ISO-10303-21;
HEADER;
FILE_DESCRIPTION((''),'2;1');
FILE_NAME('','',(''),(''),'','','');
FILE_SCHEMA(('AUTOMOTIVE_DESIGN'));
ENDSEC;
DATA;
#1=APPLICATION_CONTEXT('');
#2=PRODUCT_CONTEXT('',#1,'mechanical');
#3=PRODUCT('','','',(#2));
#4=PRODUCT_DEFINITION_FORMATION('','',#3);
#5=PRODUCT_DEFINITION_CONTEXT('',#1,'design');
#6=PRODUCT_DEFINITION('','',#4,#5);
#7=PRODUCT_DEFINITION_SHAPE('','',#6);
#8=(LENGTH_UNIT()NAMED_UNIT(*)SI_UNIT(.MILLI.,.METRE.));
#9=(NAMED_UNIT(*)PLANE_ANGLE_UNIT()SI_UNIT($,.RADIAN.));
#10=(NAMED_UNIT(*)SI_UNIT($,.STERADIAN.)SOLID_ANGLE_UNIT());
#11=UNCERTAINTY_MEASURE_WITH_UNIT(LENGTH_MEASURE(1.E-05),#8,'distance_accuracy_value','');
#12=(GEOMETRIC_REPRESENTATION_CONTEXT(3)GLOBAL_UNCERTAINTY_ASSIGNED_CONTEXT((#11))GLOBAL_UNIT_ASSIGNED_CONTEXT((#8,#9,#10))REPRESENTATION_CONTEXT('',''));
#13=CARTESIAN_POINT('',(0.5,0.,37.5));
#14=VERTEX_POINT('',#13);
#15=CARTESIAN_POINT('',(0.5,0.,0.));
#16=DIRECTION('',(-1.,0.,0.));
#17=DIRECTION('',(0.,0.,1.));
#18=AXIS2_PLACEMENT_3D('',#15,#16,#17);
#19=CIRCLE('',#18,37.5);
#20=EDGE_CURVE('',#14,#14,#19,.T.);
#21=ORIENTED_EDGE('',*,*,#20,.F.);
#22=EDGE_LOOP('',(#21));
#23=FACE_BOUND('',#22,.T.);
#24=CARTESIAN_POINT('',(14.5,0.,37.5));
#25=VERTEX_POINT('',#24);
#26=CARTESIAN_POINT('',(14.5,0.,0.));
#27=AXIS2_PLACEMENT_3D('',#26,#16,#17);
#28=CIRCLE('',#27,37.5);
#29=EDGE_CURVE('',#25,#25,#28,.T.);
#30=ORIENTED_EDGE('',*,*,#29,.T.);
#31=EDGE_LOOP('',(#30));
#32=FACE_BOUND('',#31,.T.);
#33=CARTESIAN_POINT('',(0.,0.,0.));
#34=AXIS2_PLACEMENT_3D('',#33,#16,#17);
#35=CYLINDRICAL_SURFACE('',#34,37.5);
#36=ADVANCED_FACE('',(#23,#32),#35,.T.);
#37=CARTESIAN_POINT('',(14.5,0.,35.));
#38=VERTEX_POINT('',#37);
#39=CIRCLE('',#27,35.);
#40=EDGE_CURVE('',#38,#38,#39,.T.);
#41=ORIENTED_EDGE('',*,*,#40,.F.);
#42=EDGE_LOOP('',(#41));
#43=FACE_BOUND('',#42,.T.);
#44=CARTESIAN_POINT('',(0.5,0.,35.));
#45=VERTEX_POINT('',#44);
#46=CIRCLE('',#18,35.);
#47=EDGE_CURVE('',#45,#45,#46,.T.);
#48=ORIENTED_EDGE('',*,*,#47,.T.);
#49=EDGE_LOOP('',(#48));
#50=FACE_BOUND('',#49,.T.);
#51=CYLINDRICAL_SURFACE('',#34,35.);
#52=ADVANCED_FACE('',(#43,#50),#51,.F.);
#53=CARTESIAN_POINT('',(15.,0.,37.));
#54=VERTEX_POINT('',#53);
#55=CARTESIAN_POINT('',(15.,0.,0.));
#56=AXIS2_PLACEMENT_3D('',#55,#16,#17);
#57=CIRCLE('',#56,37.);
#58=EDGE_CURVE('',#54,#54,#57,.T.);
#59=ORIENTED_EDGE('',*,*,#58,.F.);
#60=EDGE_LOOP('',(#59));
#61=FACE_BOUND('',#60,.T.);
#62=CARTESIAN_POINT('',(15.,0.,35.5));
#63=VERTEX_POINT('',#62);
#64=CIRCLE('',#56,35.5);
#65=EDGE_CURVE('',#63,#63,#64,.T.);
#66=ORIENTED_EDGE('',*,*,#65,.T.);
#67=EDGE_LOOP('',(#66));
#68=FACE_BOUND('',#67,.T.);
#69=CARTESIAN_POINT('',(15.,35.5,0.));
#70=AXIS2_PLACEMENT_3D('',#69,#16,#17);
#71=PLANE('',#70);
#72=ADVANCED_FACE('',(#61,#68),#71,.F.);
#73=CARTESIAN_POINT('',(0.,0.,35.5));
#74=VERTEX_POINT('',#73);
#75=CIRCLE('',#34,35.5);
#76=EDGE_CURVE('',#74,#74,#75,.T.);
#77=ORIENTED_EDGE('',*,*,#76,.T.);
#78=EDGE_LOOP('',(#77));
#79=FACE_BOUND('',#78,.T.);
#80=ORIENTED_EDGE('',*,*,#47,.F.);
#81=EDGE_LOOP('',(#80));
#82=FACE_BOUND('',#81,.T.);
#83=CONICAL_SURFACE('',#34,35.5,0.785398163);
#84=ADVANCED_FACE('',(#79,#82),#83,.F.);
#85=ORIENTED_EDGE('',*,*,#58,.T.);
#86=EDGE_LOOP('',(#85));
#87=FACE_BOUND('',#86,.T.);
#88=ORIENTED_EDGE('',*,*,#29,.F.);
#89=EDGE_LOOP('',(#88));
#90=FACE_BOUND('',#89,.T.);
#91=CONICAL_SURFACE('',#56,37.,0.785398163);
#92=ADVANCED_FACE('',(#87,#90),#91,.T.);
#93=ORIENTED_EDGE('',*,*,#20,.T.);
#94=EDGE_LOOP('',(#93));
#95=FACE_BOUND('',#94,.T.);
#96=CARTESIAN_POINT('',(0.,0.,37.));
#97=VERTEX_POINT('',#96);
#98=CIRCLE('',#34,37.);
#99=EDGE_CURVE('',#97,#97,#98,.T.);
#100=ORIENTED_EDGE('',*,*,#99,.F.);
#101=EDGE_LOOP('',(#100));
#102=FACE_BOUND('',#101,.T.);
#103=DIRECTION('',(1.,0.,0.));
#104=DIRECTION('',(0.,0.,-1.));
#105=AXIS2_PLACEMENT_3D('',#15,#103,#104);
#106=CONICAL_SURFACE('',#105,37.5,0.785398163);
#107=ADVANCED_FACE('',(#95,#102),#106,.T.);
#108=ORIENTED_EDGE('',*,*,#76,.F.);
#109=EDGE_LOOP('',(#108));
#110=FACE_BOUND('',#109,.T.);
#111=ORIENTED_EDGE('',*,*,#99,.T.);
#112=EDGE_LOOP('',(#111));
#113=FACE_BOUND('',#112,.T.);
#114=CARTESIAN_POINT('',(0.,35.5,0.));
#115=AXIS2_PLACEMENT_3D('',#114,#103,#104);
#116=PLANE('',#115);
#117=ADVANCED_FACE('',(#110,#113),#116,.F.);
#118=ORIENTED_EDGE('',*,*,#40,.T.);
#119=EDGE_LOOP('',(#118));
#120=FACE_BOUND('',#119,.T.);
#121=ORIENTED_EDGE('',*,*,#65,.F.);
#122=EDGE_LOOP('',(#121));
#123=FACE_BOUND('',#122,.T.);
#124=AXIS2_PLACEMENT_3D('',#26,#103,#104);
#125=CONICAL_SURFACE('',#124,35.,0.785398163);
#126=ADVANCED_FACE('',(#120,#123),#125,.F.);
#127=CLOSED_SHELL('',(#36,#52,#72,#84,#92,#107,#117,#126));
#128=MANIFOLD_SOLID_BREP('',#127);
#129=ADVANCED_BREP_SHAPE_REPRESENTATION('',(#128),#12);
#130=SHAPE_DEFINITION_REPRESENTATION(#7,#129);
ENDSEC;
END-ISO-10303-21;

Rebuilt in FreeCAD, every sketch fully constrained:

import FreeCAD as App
import Part
import Sketcher
Q = App.Units.Quantity

doc = App.newDocument("Part")
body = doc.addObject("PartDesign::Body", "Body")

# Sketch on XY plane
sketch1 = doc.addObject("Sketcher::SketchObject", "Sketch")
body.addObject(sketch1)
sketch1.AttachmentSupport = (doc.XY_Plane, [""])
sketch1.MapMode = "FlatFace"
sketch1.addGeometry([
    Part.LineSegment(App.Vector(0.5, 37.5, 0), App.Vector(0, 37, 0)),  # 0
    Part.LineSegment(App.Vector(0, 37, 0), App.Vector(0, 35.5, 0)),  # 1
    Part.LineSegment(App.Vector(0, 35.5, 0), App.Vector(0.5, 35, 0)),  # 2
    Part.LineSegment(App.Vector(0.5, 35, 0), App.Vector(14.5, 35, 0)),  # 3
    Part.LineSegment(App.Vector(14.5, 35, 0), App.Vector(15, 35.5, 0)),  # 4
    Part.LineSegment(App.Vector(15, 35.5, 0), App.Vector(15, 37, 0)),  # 5
    Part.LineSegment(App.Vector(15, 37, 0), App.Vector(14.5, 37.5, 0)),  # 6
    Part.LineSegment(App.Vector(14.5, 37.5, 0), App.Vector(0.5, 37.5, 0)),  # 7
], False)
sketch1.addConstraint([
    Sketcher.Constraint("Coincident", 0, 2, 1, 1),
    Sketcher.Constraint("Coincident", 1, 2, 2, 1),
    Sketcher.Constraint("Coincident", 2, 2, 3, 1),
    Sketcher.Constraint("Coincident", 3, 2, 4, 1),
    Sketcher.Constraint("Coincident", 4, 2, 5, 1),
    Sketcher.Constraint("Coincident", 5, 2, 6, 1),
    Sketcher.Constraint("Coincident", 6, 2, 7, 1),
    Sketcher.Constraint("Coincident", 7, 2, 0, 1),
    Sketcher.Constraint("Vertical", 1),
    Sketcher.Constraint("Horizontal", 3),
    Sketcher.Constraint("Vertical", 5),
    Sketcher.Constraint("Horizontal", 7),
    Sketcher.Constraint("PointOnObject", 0, 2, -2),
    Sketcher.Constraint("Perpendicular", 0, 2),
    Sketcher.Constraint("Perpendicular", 2, 4),
    Sketcher.Constraint("Perpendicular", 4, 6),
    Sketcher.Constraint("Horizontal", 1, 2, 4, 2),
    Sketcher.Constraint("Horizontal", 0, 2, 5, 2),
    Sketcher.Constraint("Vertical", 3, 2, 6, 2),
    Sketcher.Constraint("Vertical", 2, 2, 7, 2),
    Sketcher.Constraint("DistanceX", 3, 1, 3, 2, Q("14 mm")),
    Sketcher.Constraint("DistanceY", 1, 2, 1, 1, Q("1.5 mm")),
    Sketcher.Constraint("DistanceY", -1, 1, 0, 2, Q("37 mm")),
    Sketcher.Constraint("DistanceY", -1, 1, 2, 2, Q("35 mm")),
])
revolution = doc.addObject("PartDesign::Revolution", "Revolution")
body.addObject(revolution)
revolution.Profile = sketch1
revolution.ReferenceAxis = (sketch1, ["H_Axis"])
revolution.Angle = 360

doc.recompute()
